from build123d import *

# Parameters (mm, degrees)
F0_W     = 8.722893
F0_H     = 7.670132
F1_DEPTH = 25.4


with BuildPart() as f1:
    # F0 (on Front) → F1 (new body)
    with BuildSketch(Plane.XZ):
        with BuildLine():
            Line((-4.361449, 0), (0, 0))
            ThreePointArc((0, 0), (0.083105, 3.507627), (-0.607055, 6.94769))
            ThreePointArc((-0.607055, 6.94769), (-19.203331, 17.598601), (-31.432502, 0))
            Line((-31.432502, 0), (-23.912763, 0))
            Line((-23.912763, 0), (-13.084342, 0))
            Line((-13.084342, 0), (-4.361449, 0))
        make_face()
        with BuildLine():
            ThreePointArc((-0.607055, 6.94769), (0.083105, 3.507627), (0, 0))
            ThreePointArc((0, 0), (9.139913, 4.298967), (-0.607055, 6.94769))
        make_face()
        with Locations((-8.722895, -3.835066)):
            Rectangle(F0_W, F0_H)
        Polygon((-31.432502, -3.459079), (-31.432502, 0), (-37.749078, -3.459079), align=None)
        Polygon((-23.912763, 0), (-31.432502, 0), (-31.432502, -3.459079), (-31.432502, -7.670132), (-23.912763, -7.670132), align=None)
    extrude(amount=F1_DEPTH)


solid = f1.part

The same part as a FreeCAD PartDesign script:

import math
import FreeCAD as App
import Part
import Sketcher
Q = App.Units.Quantity

doc = App.newDocument("Part")
params = doc.addObject("Spreadsheet::Sheet", "Params")
for row, (alias, value) in enumerate([
    ("pad1_length", "1 in"),
], start=1):
    params.set(f"A{row}", alias)
    params.set(f"B{row}", "=" + value)
    params.setAlias(f"B{row}", alias)

body = doc.addObject("PartDesign::Body", "Body")

sketch1 = body.newObject("Sketcher::SketchObject", "Sketch")
sketch1.AttachmentSupport = (doc.getObject("XZ_Plane"), [""])
sketch1.MapMode = "FlatFace"
sketch1.addGeometry(Part.ArcOfCircle(Part.Circle(App.Vector(-15.716251, 2.127156, 0), App.Vector(0, 0, 1), 15.859551), math.radians(17.695095), math.radians(187.708002)), False)
sketch1.addGeometry(Part.LineSegment(App.Vector(-31.432502, 0, 0), App.Vector(-37.749078, -3.459079, 0)), False)
sketch1.addGeometry(Part.LineSegment(App.Vector(-37.749078, -3.459079, 0), App.Vector(-31.432502, -3.459079, 0)), False)
sketch1.addGeometry(Part.LineSegment(App.Vector(-31.432502, -3.459079, 0), App.Vector(-31.432502, -7.670132, 0)), False)
sketch1.addGeometry(Part.LineSegment(App.Vector(-31.432502, -7.670132, 0), App.Vector(-23.912763, -7.670132, 0)), False)
sketch1.addGeometry(Part.LineSegment(App.Vector(-23.912763, -7.670132, 0), App.Vector(-23.912763, 0, 0)), False)
sketch1.addGeometry(Part.LineSegment(App.Vector(-23.912763, 0, 0), App.Vector(-13.084342, 0, 0)), False)
sketch1.addGeometry(Part.LineSegment(App.Vector(-13.084342, 0, 0), App.Vector(-13.084342, -7.670132, 0)), False)
sketch1.addGeometry(Part.LineSegment(App.Vector(-13.084342, -7.670132, 0), App.Vector(-4.361448, -7.670132, 0)), False)
sketch1.addGeometry(Part.LineSegment(App.Vector(-4.361448, -7.670132, 0), App.Vector(-4.361448, 0, 0)), False)
sketch1.addGeometry(Part.LineSegment(App.Vector(-4.361448, 0, 0), App.Vector(0, 0, 0)), False)
sketch1.addGeometry(Part.ArcOfCircle(Part.Circle(App.Vector(3.779252, 3.830578, 0), App.Vector(0, 0, 1), 5.381085), math.radians(-134.613561), math.radians(144.600645)), False)
sketch1.addConstraint(Sketcher.Constraint("Coincident", 0, 2, 1, 1))
sketch1.addConstraint(Sketcher.Constraint("Coincident", 1, 2, 2, 1))
sketch1.addConstraint(Sketcher.Constraint("Coincident", 2, 2, 3, 1))
sketch1.addConstraint(Sketcher.Constraint("Coincident", 3, 2, 4, 1))
sketch1.addConstraint(Sketcher.Constraint("Coincident", 4, 2, 5, 1))
sketch1.addConstraint(Sketcher.Constraint("Coincident", 5, 2, 6, 1))
sketch1.addConstraint(Sketcher.Constraint("Coincident", 6, 2, 7, 1))
sketch1.addConstraint(Sketcher.Constraint("Coincident", 7, 2, 8, 1))
sketch1.addConstraint(Sketcher.Constraint("Coincident", 8, 2, 9, 1))
sketch1.addConstraint(Sketcher.Constraint("Coincident", 9, 2, 10, 1))
sketch1.addConstraint(Sketcher.Constraint("Coincident", 10, 2, 11, 1))
sketch1.addConstraint(Sketcher.Constraint("Coincident", 11, 2, 0, 1))
sketch1.addConstraint(Sketcher.Constraint("Horizontal", 2))
sketch1.addConstraint(Sketcher.Constraint("Vertical", 3))
sketch1.addConstraint(Sketcher.Constraint("Horizontal", 4))
sketch1.addConstraint(Sketcher.Constraint("Vertical", 5))
sketch1.addConstraint(Sketcher.Constraint("Horizontal", 6))
sketch1.addConstraint(Sketcher.Constraint("Vertical", 7))
sketch1.addConstraint(Sketcher.Constraint("Horizontal", 8))
sketch1.addConstraint(Sketcher.Constraint("Vertical", 9))
sketch1.addConstraint(Sketcher.Constraint("Horizontal", 10))
sketch1.addConstraint(Sketcher.Constraint("Coincident", 10, 2, -1, 1))
sketch1.addConstraint(Sketcher.Constraint("PointOnObject", 0, 2, -1))
sketch1.addConstraint(Sketcher.Constraint("PointOnObject", 5, 2, -1))
sketch1.addConstraint(Sketcher.Constraint("Horizontal", 4, 2, 7, 2))
sketch1.addConstraint(Sketcher.Constraint("Vertical", 0, 2, 2, 2))
sketch1.addConstraint(Sketcher.Constraint("Radius", 0, Q("15.859551 mm")))
sketch1.addConstraint(Sketcher.Constraint("DistanceX", 0, 2, -1, 1, Q("1.2375001 in")))
sketch1.addConstraint(Sketcher.Constraint("DistanceX", 11, 2, -1, 1, Q("0.0238998 in")))
sketch1.addConstraint(Sketcher.Constraint("Radius", 11, Q("5.381085 mm")))
sketch1.addConstraint(Sketcher.Constraint("DistanceX", 8, 2, 11, 3, Q("0.3205 in")))
sketch1.addConstraint(Sketcher.Constraint("DistanceX", 4, 1, 4, 2, Q("7.519739 mm")))
sketch1.addConstraint(Sketcher.Constraint("DistanceX", 6, 1, 6, 2, Q("10.828422 mm")))
sketch1.addConstraint(Sketcher.Constraint("DistanceX", 10, 1, 10, 2, Q("4.361448 mm")))
sketch1.addConstraint(Sketcher.Constraint("DistanceY", 5, 1, 5, 2, Q("7.670132 mm")))
sketch1.addConstraint(Sketcher.Constraint("Distance", 1, Q("7.201691 mm")))
sketch1.addConstraint(Sketcher.Constraint("DistanceX", 2, 1, 2, 2, Q("6.316576 mm")))
pad1 = body.newObject("PartDesign::Pad", "Pad")
pad1.Profile = sketch1
pad1.setExpression("Length", "Params.pad1_length")

doc.recompute()
